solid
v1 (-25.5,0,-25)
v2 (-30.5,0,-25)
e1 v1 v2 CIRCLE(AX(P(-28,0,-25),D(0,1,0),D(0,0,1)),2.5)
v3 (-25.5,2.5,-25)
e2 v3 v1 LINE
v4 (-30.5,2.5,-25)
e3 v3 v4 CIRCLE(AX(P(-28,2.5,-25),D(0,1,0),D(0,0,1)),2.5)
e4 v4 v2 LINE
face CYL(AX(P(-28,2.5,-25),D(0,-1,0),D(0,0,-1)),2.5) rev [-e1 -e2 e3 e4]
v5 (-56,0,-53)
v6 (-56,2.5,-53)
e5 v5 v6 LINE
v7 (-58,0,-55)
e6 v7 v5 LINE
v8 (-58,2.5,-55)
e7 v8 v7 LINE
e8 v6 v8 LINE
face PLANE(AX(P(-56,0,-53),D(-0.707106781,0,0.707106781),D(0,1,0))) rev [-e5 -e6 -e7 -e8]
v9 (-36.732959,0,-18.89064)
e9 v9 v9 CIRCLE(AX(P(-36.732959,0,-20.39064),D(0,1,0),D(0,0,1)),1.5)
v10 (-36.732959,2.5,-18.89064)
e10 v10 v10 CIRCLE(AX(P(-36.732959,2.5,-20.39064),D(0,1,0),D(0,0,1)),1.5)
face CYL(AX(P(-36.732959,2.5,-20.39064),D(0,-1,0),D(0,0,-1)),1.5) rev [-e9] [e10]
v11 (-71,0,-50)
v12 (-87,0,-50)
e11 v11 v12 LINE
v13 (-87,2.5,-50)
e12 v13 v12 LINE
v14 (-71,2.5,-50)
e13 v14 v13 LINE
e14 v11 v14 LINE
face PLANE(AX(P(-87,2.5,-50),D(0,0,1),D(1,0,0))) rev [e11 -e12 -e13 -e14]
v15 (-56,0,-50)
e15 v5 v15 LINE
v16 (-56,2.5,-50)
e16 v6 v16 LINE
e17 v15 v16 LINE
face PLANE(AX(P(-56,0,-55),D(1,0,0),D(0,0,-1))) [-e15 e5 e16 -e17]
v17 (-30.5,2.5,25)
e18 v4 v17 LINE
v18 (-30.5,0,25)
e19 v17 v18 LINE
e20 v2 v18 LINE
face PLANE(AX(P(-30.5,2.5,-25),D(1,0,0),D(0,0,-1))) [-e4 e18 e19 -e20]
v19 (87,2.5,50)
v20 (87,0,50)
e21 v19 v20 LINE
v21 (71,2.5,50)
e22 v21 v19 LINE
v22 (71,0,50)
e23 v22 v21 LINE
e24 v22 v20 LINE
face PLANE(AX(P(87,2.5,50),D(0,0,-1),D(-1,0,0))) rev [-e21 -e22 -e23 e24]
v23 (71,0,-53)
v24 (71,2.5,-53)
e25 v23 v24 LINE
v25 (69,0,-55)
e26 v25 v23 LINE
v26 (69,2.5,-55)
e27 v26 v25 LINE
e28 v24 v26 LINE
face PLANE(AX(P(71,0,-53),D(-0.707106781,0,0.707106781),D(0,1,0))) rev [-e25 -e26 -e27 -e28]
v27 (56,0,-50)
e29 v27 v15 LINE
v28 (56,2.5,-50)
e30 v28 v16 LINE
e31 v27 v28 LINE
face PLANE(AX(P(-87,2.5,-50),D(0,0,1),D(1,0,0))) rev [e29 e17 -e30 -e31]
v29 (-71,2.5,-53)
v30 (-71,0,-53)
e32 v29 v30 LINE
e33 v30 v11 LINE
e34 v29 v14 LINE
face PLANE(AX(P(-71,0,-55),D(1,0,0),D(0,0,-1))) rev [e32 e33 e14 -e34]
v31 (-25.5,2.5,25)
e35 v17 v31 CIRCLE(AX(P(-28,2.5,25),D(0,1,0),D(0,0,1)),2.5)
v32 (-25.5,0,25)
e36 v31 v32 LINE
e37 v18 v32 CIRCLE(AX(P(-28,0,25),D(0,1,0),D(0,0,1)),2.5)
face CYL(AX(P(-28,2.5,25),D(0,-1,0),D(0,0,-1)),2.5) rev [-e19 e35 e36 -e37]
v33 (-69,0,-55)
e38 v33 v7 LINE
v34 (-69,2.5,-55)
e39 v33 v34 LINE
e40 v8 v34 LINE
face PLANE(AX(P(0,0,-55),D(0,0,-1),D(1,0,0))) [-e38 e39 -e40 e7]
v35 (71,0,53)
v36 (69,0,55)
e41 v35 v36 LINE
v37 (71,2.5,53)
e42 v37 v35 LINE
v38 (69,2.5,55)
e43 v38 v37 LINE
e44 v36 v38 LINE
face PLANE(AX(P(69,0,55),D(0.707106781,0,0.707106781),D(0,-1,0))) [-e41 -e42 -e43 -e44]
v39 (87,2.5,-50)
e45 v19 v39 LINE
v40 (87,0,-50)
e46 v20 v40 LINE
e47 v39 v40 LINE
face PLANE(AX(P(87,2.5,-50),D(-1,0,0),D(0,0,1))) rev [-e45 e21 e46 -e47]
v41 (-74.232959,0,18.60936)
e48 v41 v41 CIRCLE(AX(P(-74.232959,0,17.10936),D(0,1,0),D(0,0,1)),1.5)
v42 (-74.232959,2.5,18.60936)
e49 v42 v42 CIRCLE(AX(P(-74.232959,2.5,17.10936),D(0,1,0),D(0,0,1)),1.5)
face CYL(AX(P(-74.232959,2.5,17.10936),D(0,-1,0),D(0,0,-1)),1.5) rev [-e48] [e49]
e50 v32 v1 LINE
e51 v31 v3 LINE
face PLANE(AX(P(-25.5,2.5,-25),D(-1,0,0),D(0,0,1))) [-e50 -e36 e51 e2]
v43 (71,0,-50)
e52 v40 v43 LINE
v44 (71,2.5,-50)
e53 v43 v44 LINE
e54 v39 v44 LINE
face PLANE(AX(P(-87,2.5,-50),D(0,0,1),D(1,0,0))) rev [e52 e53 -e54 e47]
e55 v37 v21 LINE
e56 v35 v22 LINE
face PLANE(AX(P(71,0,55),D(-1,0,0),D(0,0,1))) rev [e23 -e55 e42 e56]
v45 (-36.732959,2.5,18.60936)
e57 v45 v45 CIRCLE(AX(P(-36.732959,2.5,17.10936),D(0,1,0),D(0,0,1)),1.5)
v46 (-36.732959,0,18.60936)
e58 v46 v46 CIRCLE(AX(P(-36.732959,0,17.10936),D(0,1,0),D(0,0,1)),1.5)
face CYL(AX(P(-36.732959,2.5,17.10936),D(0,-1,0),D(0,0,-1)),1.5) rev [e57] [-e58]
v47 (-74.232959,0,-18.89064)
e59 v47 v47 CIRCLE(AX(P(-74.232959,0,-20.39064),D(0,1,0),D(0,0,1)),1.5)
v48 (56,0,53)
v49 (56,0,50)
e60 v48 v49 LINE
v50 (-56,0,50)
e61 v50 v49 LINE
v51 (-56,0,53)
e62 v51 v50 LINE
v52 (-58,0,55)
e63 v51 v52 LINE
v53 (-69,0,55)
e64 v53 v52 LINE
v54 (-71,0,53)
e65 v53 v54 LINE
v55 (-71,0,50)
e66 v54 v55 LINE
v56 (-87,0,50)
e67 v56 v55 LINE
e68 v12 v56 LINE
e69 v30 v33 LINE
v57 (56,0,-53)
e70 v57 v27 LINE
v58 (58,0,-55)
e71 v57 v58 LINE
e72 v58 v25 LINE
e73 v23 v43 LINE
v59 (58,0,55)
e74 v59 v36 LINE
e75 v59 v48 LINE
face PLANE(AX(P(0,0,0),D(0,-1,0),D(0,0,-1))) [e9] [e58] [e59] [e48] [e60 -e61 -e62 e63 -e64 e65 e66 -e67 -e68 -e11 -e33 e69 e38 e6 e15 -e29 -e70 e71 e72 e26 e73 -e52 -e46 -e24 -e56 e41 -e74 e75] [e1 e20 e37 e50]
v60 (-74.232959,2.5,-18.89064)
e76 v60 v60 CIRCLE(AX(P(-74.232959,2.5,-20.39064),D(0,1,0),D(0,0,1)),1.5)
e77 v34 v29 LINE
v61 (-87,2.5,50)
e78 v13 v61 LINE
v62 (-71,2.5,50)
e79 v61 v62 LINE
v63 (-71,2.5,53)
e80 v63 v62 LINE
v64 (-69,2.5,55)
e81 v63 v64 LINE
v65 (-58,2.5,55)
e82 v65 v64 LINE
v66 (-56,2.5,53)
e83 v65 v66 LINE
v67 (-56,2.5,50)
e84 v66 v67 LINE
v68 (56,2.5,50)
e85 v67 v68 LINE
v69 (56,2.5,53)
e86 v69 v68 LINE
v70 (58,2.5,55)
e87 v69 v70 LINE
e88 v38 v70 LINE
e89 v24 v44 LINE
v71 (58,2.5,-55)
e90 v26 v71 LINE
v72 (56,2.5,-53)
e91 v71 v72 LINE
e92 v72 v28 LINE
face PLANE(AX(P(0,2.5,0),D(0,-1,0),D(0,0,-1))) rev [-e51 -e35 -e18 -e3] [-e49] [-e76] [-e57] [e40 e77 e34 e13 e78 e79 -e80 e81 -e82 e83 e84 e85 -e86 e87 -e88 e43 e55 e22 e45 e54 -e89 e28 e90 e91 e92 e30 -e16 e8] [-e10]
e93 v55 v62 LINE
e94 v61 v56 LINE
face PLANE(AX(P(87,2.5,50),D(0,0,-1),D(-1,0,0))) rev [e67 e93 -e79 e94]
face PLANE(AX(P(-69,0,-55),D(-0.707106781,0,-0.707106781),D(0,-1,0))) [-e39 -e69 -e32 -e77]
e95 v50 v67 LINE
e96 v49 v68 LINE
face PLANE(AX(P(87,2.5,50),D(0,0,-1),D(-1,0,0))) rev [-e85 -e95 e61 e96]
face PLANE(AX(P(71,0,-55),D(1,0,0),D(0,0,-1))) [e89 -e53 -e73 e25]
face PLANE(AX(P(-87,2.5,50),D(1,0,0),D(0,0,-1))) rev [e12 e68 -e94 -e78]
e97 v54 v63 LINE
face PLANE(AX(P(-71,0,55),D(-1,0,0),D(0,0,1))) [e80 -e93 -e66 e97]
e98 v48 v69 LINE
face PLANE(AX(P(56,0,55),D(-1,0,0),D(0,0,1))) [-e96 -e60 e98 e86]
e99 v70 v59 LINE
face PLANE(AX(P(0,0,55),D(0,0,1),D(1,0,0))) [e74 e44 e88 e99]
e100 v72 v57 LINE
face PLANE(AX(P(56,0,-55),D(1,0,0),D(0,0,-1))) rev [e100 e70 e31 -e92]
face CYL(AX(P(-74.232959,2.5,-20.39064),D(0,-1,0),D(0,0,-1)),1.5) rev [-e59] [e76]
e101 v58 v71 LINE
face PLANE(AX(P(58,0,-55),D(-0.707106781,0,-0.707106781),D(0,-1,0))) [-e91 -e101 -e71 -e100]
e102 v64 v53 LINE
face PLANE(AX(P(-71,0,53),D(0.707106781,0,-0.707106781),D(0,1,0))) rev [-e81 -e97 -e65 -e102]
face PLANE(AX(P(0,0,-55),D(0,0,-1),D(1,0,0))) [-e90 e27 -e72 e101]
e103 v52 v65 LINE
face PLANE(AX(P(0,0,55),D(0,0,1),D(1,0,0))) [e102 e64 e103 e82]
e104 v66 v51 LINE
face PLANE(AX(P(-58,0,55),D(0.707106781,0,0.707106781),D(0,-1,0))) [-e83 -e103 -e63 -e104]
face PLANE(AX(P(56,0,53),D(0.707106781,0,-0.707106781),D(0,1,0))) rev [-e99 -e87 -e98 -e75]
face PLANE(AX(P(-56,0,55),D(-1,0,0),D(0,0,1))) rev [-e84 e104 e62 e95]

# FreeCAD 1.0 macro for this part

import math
import FreeCAD as App
import Part
import Sketcher

V = App.Vector


def edges_at(feature, points):
    """Names of the edges that pass closest to the given points."""
    edges = feature.Shape.Edges
    near = lambda p: min(range(len(edges)), key=lambda i: edges[i].distToShape(Part.Vertex(*p))[0])
    return sorted({f"Edge{near(p) + 1}" for p in points})

doc = App.newDocument("Part")
body = doc.addObject("PartDesign::Body", "Body")

# Sketch on XZ plane
sketch1 = body.newObject("Sketcher::SketchObject", "Sketch")
sketch1.AttachmentSupport = (doc.getObject("XZ_Plane"), [""])
sketch1.MapMode = "FlatFace"
sketch1.addGeometry([
    Part.LineSegment(V(-87, -50, 0), V(-87, 50, 0)),  # 0
    Part.LineSegment(V(-87, 50, 0), V(87, 50, 0)),  # 1
    Part.LineSegment(V(87, 50, 0), V(87, -50, 0)),  # 2
    Part.LineSegment(V(87, -50, 0), V(-87, -50, 0)),  # 3
    Part.Circle(V(-74.2, 17.1, 0), V(0, 0, 1), 1.5),  # 4
    Part.Circle(V(-36.7, 17.1, 0), V(0, 0, 1), 1.5),  # 5
    Part.Circle(V(-74.2, -20.4, 0), V(0, 0, 1), 1.5),  # 6
    Part.ArcOfCircle(Part.Circle(V(-28, -25, 0), V(0, 0, 1), 2.5), math.radians(180), math.radians(360)),  # 7
    Part.LineSegment(V(-25.5, -25, 0), V(-25.5, 25, 0)),  # 8
    Part.ArcOfCircle(Part.Circle(V(-28, 25, 0), V(0, 0, 1), 2.5), math.radians(0), math.radians(180)),  # 9
    Part.LineSegment(V(-30.5, 25, 0), V(-30.5, -25, 0)),  # 10
    Part.Circle(V(-36.7, -20.4, 0), V(0, 0, 1), 1.5),  # 11
], False)
sketch1.addConstraint([
    Sketcher.Constraint("Coincident", 0, 2, 1, 1),
    Sketcher.Constraint("Coincident", 1, 2, 2, 1),
    Sketcher.Constraint("Coincident", 2, 2, 3, 1),
    Sketcher.Constraint("Coincident", 3, 2, 0, 1),
    Sketcher.Constraint("Tangent", 7, 2, 8, 1),
    Sketcher.Constraint("Tangent", 8, 2, 9, 1),
    Sketcher.Constraint("Tangent", 9, 2, 10, 1),
    Sketcher.Constraint("Tangent", 10, 2, 7, 1),
    Sketcher.Constraint("Vertical", 0),
    Sketcher.Constraint("Horizontal", 1),
    Sketcher.Constraint("Vertical", 2),
    Sketcher.Constraint("Horizontal", 3),
    Sketcher.Constraint("Vertical", 8),
    Sketcher.Constraint("Vertical", 10),
    Sketcher.Constraint("Equal", 4, 5),
    Sketcher.Constraint("Equal", 5, 6),
    Sketcher.Constraint("Equal", 6, 11),
    Sketcher.Constraint("Symmetric", 0, 2, 2, 2, -1, 1),
    Sketcher.Constraint("Horizontal", 4, 3, 5, 3),
    Sketcher.Constraint("Horizontal", 6, 3, 11, 3),
    Sketcher.Constraint("Vertical", 4, 3, 6, 3),
    Sketcher.Constraint("Vertical", 5, 3, 11, 3),
    Sketcher.Constraint("Diameter", 4, 3.0),
    Sketcher.Constraint("Radius", 7, 2.5),
    Sketcher.Constraint("DistanceX", 1, 1, 1, 2, 174.0),
    Sketcher.Constraint("DistanceY", 0, 1, 0, 2, 100.0),
    Sketcher.Constraint("DistanceY", 8, 1, 8, 2, 50.0),
    Sketcher.Constraint("DistanceX", 7, 3, -1, 1, 28.0),
    Sketcher.Constraint("DistanceY", 7, 3, -1, 1, 25.0),
    Sketcher.Constraint("DistanceX", 4, 3, 5, 3, 37.5),
    Sketcher.Constraint("DistanceY", 6, 3, 4, 3, 37.5),
    Sketcher.Constraint("DistanceX", 4, 3, -1, 1, 74.232959),
    Sketcher.Constraint("DistanceY", -1, 1, 4, 3, 17.10936),
])
pad1 = body.newObject("PartDesign::Pad", "Pad")
pad1.Profile = sketch1
pad1.Length = 2.5
pad1.Reversed = True

# Sketch on XY plane
sketch2 = body.newObject("Sketcher::SketchObject", "Sketch001")
sketch2.AttachmentSupport = (doc.getObject("XY_Plane"), [""])
sketch2.MapMode = "FlatFace"
sketch2.AttachmentOffset = App.Placement(V(0, 0, 50), App.Rotation())
sketch2.addGeometry([
    Part.LineSegment(V(-71, 2.5, 0), V(-71, 0, 0)),  # 0
    Part.LineSegment(V(-71, 0, 0), V(-56, 0, 0)),  # 1
    Part.LineSegment(V(-56, 0, 0), V(-56, 2.5, 0)),  # 2
    Part.LineSegment(V(-56, 2.5, 0), V(-71, 2.5, 0)),  # 3
    Part.LineSegment(V(56, 2.5, 0), V(56, 0, 0)),  # 4
    Part.LineSegment(V(56, 0, 0), V(71, 0, 0)),  # 5
    Part.LineSegment(V(71, 0, 0), V(71, 2.5, 0)),  # 6
    Part.LineSegment(V(71, 2.5, 0), V(56, 2.5, 0)),  # 7
], False)
sketch2.addConstraint([
    Sketcher.Constraint("Coincident", 0, 2, 1, 1),
    Sketcher.Constraint("Coincident", 1, 2, 2, 1),
    Sketcher.Constraint("Coincident", 2, 2, 3, 1),
    Sketcher.Constraint("Coincident", 3, 2, 0, 1),
    Sketcher.Constraint("Coincident", 4, 2, 5, 1),
    Sketcher.Constraint("Coincident", 5, 2, 6, 1),
    Sketcher.Constraint("Coincident", 6, 2, 7, 1),
    Sketcher.Constraint("Coincident", 7, 2, 4, 1),
    Sketcher.Constraint("Vertical", 0),
    Sketcher.Constraint("Horizontal", 1),
    Sketcher.Constraint("Vertical", 2),
    Sketcher.Constraint("Horizontal", 3),
    Sketcher.Constraint("Vertical", 4),
    Sketcher.Constraint("Horizontal", 5),
    Sketcher.Constraint("Vertical", 6),
    Sketcher.Constraint("Horizontal", 7),
    Sketcher.Constraint("Symmetric", 1, 2, 4, 2, -1, 1),
    Sketcher.Constraint("Symmetric", 0, 2, 5, 2, -2),
    Sketcher.Constraint("Horizontal", 3, 2, 6, 2),
    Sketcher.Constraint("DistanceX", 1, 1, 1, 2, 15.0),
    Sketcher.Constraint("DistanceY", 0, 2, 0, 1, 2.5),
    Sketcher.Constraint("DistanceX", 0, 2, -1, 1, 71.0),
])
pad2 = body.newObject("PartDesign::Pad", "Pad001")
pad2.Profile = sketch2
pad2.Length = 5
doc.recompute()

mirrored = body.newObject("PartDesign::Mirrored", "Mirrored")
mirrored.Originals = [pad2]
mirrored.MirrorPlane = (doc.getObject("XY_Plane"), [""])
body.Tip = mirrored
doc.recompute()

chamfer = body.newObject("PartDesign::Chamfer", "Chamfer")
chamfer.Base = (mirrored, edges_at(mirrored, [
    (-71, 1.25, 55),
    (-56, 1.25, 55),
    (56, 1.25, 55),
    (71, 1.25, 55),
    (-56, 1.25, -55),
    (-71, 1.25, -55),
    (71, 1.25, -55),
    (56, 1.25, -55),
]))
chamfer.Size = 2

doc.recompute()
